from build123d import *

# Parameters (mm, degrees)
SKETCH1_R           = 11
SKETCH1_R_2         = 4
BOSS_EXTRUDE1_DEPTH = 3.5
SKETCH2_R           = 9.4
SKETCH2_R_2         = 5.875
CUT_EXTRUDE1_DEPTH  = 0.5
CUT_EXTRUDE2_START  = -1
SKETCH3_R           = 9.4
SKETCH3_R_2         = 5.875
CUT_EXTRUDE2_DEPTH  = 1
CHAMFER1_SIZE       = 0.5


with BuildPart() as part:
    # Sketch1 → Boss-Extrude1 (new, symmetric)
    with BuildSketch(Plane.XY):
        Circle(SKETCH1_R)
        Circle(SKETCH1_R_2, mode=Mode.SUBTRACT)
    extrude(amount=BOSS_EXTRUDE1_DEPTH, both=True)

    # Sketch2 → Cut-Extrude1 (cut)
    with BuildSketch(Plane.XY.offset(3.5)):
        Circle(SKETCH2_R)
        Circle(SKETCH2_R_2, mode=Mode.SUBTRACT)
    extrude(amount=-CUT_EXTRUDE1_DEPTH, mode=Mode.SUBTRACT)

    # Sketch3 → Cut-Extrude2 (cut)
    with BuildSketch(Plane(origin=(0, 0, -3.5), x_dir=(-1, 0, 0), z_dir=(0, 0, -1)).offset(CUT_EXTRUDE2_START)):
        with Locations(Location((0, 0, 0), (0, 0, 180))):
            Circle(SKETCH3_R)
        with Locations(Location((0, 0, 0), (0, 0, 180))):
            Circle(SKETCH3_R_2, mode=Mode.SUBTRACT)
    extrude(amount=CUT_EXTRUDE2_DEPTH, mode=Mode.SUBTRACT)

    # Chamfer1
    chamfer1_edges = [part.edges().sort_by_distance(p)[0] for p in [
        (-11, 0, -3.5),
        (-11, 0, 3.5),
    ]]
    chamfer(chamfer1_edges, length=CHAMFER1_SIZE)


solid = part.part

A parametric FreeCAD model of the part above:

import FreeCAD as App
import Part
import Sketcher

V = App.Vector


def edges_at(feature, points):
    """Names of the edges that pass closest to the given points."""
    edges = feature.Shape.Edges
    near = lambda p: min(range(len(edges)), key=lambda i: edges[i].distToShape(Part.Vertex(*p))[0])
    return sorted({f"Edge{near(p) + 1}" for p in points})

doc = App.newDocument("Part")
body = doc.addObject("PartDesign::Body", "Body")

# Sketch on XY plane
sketch1 = body.newObject("Sketcher::SketchObject", "Sketch")
sketch1.AttachmentSupport = (doc.getObject("XY_Plane"), [""])
sketch1.MapMode = "FlatFace"
sketch1.addGeometry([
    Part.Circle(V(0, 0, 0), V(0, 0, 1), 11),
    Part.Circle(V(0, 0, 0), V(0, 0, 1), 4),
], False)
sketch1.addConstraint([
    Sketcher.Constraint("Coincident", 0, 3, -1, 1),
    Sketcher.Constraint("Coincident", 1, 3, -1, 1),
    Sketcher.Constraint("Diameter", 0, 22.0),
    Sketcher.Constraint("Diameter", 1, 8.0),
])
pad1 = body.newObject("PartDesign::Pad", "Pad")
pad1.Profile = sketch1
pad1.Length = 7
pad1.Midplane = True

# Sketch on XY plane
sketch2 = body.newObject("Sketcher::SketchObject", "Sketch001")
sketch2.AttachmentSupport = (doc.getObject("XY_Plane"), [""])
sketch2.MapMode = "FlatFace"
sketch2.AttachmentOffset = App.Placement(V(0, 0, 3.5), App.Rotation())
sketch2.addGeometry([
    Part.Circle(V(0, 0, 0), V(0, 0, 1), 9),
    Part.Circle(V(0, 0, 0), V(0, 0, 1), 6),
], False)
sketch2.addConstraint([
    Sketcher.Constraint("Coincident", 0, 3, -1, 1),
    Sketcher.Constraint("Coincident", 1, 3, -1, 1),
    Sketcher.Constraint("Diameter", 0, 18.8),
    Sketcher.Constraint("Diameter", 1, 11.75),
])
pocket1 = body.newObject("PartDesign::Pocket", "Pocket")
pocket1.Profile = sketch2
pocket1.Length = 0.5

# Sketch on XY plane
sketch3 = body.newObject("Sketcher::SketchObject", "Sketch002")
sketch3.AttachmentSupport = (doc.getObject("XY_Plane"), [""])
sketch3.MapMode = "FlatFace"
sketch3.AttachmentOffset = App.Placement(V(0, 0, -2.5), App.Rotation())
sketch3.addGeometry([
    Part.Circle(V(0, 0, 0), V(0, 0, 1), 9),
    Part.Circle(V(0, 0, 0), V(0, 0, 1), 6),
], False)
sketch3.addConstraint([
    Sketcher.Constraint("Coincident", 0, 3, -1, 1),
    Sketcher.Constraint("Coincident", 1, 3, -1, 1),
    Sketcher.Constraint("Diameter", 0, 18.8),
    Sketcher.Constraint("Diameter", 1, 11.75),
])
pocket2 = body.newObject("PartDesign::Pocket", "Pocket001")
pocket2.Profile = sketch3
pocket2.Length = 1
doc.recompute()

chamfer = body.newObject("PartDesign::Chamfer", "Chamfer")
chamfer.Base = (pocket2, edges_at(pocket2, [(-11, 0, -3.5), (-11, 0, 3.5)]))
chamfer.Size = 0.5

doc.recompute()
